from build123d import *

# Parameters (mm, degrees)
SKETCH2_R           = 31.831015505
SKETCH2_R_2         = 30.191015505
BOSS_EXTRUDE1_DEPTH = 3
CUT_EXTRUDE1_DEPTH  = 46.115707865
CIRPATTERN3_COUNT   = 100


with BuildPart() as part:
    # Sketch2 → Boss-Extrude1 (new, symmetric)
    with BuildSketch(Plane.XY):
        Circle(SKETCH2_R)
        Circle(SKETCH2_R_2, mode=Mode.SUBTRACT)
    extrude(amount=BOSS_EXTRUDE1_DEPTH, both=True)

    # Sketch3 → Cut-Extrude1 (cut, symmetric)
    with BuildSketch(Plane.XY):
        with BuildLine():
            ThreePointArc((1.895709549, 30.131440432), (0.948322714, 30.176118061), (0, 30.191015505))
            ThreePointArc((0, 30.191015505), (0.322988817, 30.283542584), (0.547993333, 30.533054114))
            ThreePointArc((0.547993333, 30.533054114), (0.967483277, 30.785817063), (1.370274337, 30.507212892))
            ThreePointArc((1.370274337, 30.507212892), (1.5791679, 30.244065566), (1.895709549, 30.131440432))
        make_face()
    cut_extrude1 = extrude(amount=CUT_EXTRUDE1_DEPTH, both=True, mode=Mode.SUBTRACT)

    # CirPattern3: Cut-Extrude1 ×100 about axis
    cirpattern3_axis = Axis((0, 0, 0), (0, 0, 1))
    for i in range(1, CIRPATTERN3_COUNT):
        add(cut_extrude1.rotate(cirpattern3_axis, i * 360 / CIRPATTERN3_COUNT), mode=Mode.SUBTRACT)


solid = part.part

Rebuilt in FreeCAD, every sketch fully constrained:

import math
import FreeCAD as App
import Part
import Sketcher
from FreeCAD import Vector
Q = App.Units.Quantity

doc = App.newDocument("Part")
params = doc.addObject("Spreadsheet::Sheet", "Params")
for row, (alias, value) in enumerate([
    ("pad1_length", "6 mm"),
    ("sketch2_radius", "0.61 mm"),
    ("pocket1_length", "92.231416 mm"),
], start=1):
    params.set(f"A{row}", alias)
    params.set(f"B{row}", "=" + value)
    params.setAlias(f"B{row}", alias)

body = doc.addObject("PartDesign::Body", "Body")

sketch1 = body.newObject("Sketcher::SketchObject", "Sketch")
sketch1.AttachmentSupport = (doc.getObject("XY_Plane"), [""])
sketch1.MapMode = "FlatFace"
sketch1.addGeometry([
    Part.Circle(Vector(0, 0, 0), Vector(0, 0, 1), 31.831016),
    Part.Circle(Vector(0, 0, 0), Vector(0, 0, 1), 30.191016),
], False)
sketch1.addConstraint([
    Sketcher.Constraint("Coincident", 0, 3, -1, 1),
    Sketcher.Constraint("Coincident", 1, 3, -1, 1),
    Sketcher.Constraint("Diameter", 0, Q("63.662031 mm")),
    Sketcher.Constraint("Diameter", 1, Q("60.382031 mm")),
])
pad1 = body.newObject("PartDesign::Pad", "Pad")
pad1.Profile = sketch1
pad1.setExpression("Length", "Params.pad1_length")
pad1.Midplane = True

sketch2 = body.newObject("Sketcher::SketchObject", "Sketch001")
sketch2.AttachmentSupport = (doc.getObject("XY_Plane"), [""])
sketch2.MapMode = "FlatFace"
sketch2.addGeometry([
    Part.ArcOfCircle(Part.Circle(Vector(0, 0, 0), Vector(0, 0, 1), 30.191016), math.radians(86.4), math.radians(90)),
    Part.ArcOfCircle(Part.Circle(Vector(1.934012, 30.740237, 0), Vector(0, 0, 1), 0.61), math.radians(-157.541987), math.radians(-93.6)),
    Part.ArcOfCircle(Part.Circle(Vector(0.953311, 30.334859, 0), Vector(0, 0, 1), 0.451181), math.radians(22.458013), math.radians(153.941987)),
    Part.ArcOfCircle(Part.Circle(Vector(0, 30.801016, 0), Vector(0, 0, 1), 0.61), math.radians(-90), math.radians(-26.058013)),
], False)
sketch2.addConstraint([
    Sketcher.Constraint("Tangent", 0, 1, 1, 2),
    Sketcher.Constraint("Tangent", 1, 1, 2, 1),
    Sketcher.Constraint("Tangent", 2, 2, 3, 2),
    Sketcher.Constraint("Tangent", 3, 1, 0, 2),
    Sketcher.Constraint("Coincident", 0, 3, -1, 1),
    Sketcher.Constraint("Equal", 1, 3),
    Sketcher.Constraint("PointOnObject", 3, 3, -2),
    Sketcher.Constraint("Radius", 1, Q("0.61 mm")),
    Sketcher.Constraint("Radius", 2, Q("0.451181 mm")),
    Sketcher.Constraint("Radius", 0, Q("30.191016 mm")),
    Sketcher.Constraint("DistanceX", 2, 3, 1, 3, Q("0.9807 mm")),
])
sketch2.setExpression("Constraints[7]", "Params.sketch2_radius")
pocket1 = body.newObject("PartDesign::Pocket", "Pocket")
pocket1.Profile = sketch2
pocket1.setExpression("Length", "Params.pocket1_length")
pocket1.Midplane = True
doc.recompute()

polarpattern = body.newObject("PartDesign::PolarPattern", "PolarPattern")
polarpattern.Originals = [pocket1]
polarpattern.Axis = (doc.getObject("Z_Axis"), [""])
polarpattern.Angle = 360
polarpattern.Occurrences = 100
body.Tip = polarpattern

doc.recompute()
